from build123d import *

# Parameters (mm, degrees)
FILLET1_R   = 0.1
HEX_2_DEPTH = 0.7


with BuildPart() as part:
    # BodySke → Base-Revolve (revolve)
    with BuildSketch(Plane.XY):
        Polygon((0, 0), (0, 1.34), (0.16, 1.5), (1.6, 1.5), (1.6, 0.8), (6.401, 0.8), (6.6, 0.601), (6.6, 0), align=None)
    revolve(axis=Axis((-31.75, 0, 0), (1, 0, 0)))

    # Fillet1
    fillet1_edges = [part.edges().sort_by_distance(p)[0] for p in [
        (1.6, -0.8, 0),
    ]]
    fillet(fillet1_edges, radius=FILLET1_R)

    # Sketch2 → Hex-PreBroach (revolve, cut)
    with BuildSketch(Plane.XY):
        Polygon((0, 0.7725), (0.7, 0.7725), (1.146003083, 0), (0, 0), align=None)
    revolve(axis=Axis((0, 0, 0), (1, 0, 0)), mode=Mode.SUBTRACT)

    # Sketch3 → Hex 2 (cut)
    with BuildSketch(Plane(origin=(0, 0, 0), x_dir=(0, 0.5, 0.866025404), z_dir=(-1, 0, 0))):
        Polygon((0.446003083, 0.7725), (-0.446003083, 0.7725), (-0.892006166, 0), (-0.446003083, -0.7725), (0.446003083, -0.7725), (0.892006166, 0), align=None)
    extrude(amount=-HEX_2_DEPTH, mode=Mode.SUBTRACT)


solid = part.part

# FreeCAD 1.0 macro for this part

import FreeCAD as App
import Part
import Sketcher
from FreeCAD import Vector
Q = App.Units.Quantity


def edges_at(feature, points):
    """Names of the edges that pass closest to the given points."""
    edges = feature.Shape.Edges
    near = lambda p: min(range(len(edges)), key=lambda i: edges[i].distToShape(Part.Vertex(*p))[0])
    return sorted({f"Edge{near(p) + 1}" for p in points})

doc = App.newDocument("Part")
body = doc.addObject("PartDesign::Body", "Body")

sketch1 = body.newObject("Sketcher::SketchObject", "Sketch")
sketch1.AttachmentSupport = (doc.getObject("XY_Plane"), [""])
sketch1.MapMode = "FlatFace"
sketch1.addGeometry([
    Part.LineSegment(Vector(0, 1.34, 0), Vector(0, 0, 0)),
    Part.LineSegment(Vector(0, 0, 0), Vector(6.6, 0, 0)),
    Part.LineSegment(Vector(6.6, 0, 0), Vector(6.6, 0.6, 0)),
    Part.LineSegment(Vector(6.6, 0.6, 0), Vector(6.4, 0.8, 0)),
    Part.LineSegment(Vector(6.4, 0.8, 0), Vector(1.6, 0.8, 0)),
    Part.LineSegment(Vector(1.6, 0.8, 0), Vector(1.6, 1.5, 0)),
    Part.LineSegment(Vector(1.6, 1.5, 0), Vector(0.16, 1.5, 0)),
    Part.LineSegment(Vector(0.16, 1.5, 0), Vector(0, 1.34, 0)),
], False)
sketch1.addConstraint([
    Sketcher.Constraint("Coincident", 0, 2, 1, 1),
    Sketcher.Constraint("Coincident", 1, 2, 2, 1),
    Sketcher.Constraint("Coincident", 2, 2, 3, 1),
    Sketcher.Constraint("Coincident", 3, 2, 4, 1),
    Sketcher.Constraint("Coincident", 4, 2, 5, 1),
    Sketcher.Constraint("Coincident", 5, 2, 6, 1),
    Sketcher.Constraint("Coincident", 6, 2, 7, 1),
    Sketcher.Constraint("Coincident", 7, 2, 0, 1),
    Sketcher.Constraint("Vertical", 0),
    Sketcher.Constraint("Horizontal", 1),
    Sketcher.Constraint("Vertical", 2),
    Sketcher.Constraint("Horizontal", 4),
    Sketcher.Constraint("Vertical", 5),
    Sketcher.Constraint("Horizontal", 6),
    Sketcher.Constraint("Coincident", 0, 2, -1, 1),
    Sketcher.Constraint("Perpendicular", 3, 7),
    Sketcher.Constraint("Angle", 3, Q("135 deg")),
    Sketcher.Constraint("DistanceX", 1, 1, 1, 2, 6.6),
    Sketcher.Constraint("DistanceY", 5, 1, 5, 2, 0.7),
    Sketcher.Constraint("DistanceX", 4, 2, 2, 2, 5.0),
    Sketcher.Constraint("DistanceX", 6, 2, 6, 1, 1.44),
    Sketcher.Constraint("DistanceY", 0, 2, 0, 1, 1.34),
    Sketcher.Constraint("DistanceX", 4, 2, 4, 1, 4.801),
])
revolution = body.newObject("PartDesign::Revolution", "Revolution")
revolution.Profile = sketch1
revolution.ReferenceAxis = (sketch1, ["H_Axis"])
revolution.Angle = 360
doc.recompute()

fillet = body.newObject("PartDesign::Fillet", "Fillet")
fillet.Base = (revolution, edges_at(revolution, [(1.6, -0.8, 0)]))
fillet.Radius = 0.1

sketch2 = body.newObject("Sketcher::SketchObject", "Sketch001")
sketch2.AttachmentSupport = (doc.getObject("XY_Plane"), [""])
sketch2.MapMode = "FlatFace"
sketch2.addGeometry([
    Part.LineSegment(Vector(0.7, 0.8, 0), Vector(0, 0.8, 0)),
    Part.LineSegment(Vector(0, 0.8, 0), Vector(0, 0, 0)),
    Part.LineSegment(Vector(0, 0, 0), Vector(1.1, 0, 0)),
    Part.LineSegment(Vector(1.1, 0, 0), Vector(0.7, 0.8, 0)),
], False)
sketch2.addConstraint([
    Sketcher.Constraint("Coincident", 0, 2, 1, 1),
    Sketcher.Constraint("Coincident", 1, 2, 2, 1),
    Sketcher.Constraint("Coincident", 2, 2, 3, 1),
    Sketcher.Constraint("Coincident", 3, 2, 0, 1),
    Sketcher.Constraint("Horizontal", 0),
    Sketcher.Constraint("Vertical", 1),
    Sketcher.Constraint("Horizontal", 2),
    Sketcher.Constraint("Coincident", 1, 2, -1, 1),
    Sketcher.Constraint("Angle", 3, Q("120 deg")),
    Sketcher.Constraint("DistanceX", 0, 2, 0, 1, 0.7),
    Sketcher.Constraint("DistanceY", 1, 2, 1, 1, 0.7725),
])
groove = body.newObject("PartDesign::Groove", "Groove")
groove.Profile = sketch2
groove.ReferenceAxis = (sketch2, ["H_Axis"])
groove.Angle = 360

sketch3 = body.newObject("Sketcher::SketchObject", "Sketch002")
sketch3.AttachmentSupport = (doc.getObject("YZ_Plane"), [""])
sketch3.MapMode = "FlatFace"
sketch3.addGeometry([
    Part.LineSegment(Vector(0.9, 0, 0), Vector(0.4, -0.8, 0)),
    Part.LineSegment(Vector(0.4, -0.8, 0), Vector(-0.4, -0.8, 0)),
    Part.LineSegment(Vector(-0.4, -0.8, 0), Vector(-0.9, 0, 0)),
    Part.LineSegment(Vector(-0.9, 0, 0), Vector(-0.4, 0.8, 0)),
    Part.LineSegment(Vector(-0.4, 0.8, 0), Vector(0.4, 0.8, 0)),
    Part.LineSegment(Vector(0.4, 0.8, 0), Vector(0.9, 0, 0)),
], False)
sketch3.addConstraint([
    Sketcher.Constraint("Coincident", 0, 2, 1, 1),
    Sketcher.Constraint("Coincident", 1, 2, 2, 1),
    Sketcher.Constraint("Coincident", 2, 2, 3, 1),
    Sketcher.Constraint("Coincident", 3, 2, 4, 1),
    Sketcher.Constraint("Coincident", 4, 2, 5, 1),
    Sketcher.Constraint("Coincident", 5, 2, 0, 1),
    Sketcher.Constraint("Horizontal", 1),
    Sketcher.Constraint("Horizontal", 4),
    Sketcher.Constraint("Symmetric", 0, 2, 3, 2, -1, 1),
    Sketcher.Constraint("Symmetric", 2, 2, 5, 2, -1, 1),
    Sketcher.Constraint("PointOnObject", 2, 2, -1),
    Sketcher.Constraint("Parallel", 2, 5),
    Sketcher.Constraint("Vertical", 1, 2, 3, 2),
    Sketcher.Constraint("Angle", 0, Q("-120 deg")),
    Sketcher.Constraint("DistanceY", 1, 2, 3, 2, 1.545),
    Sketcher.Constraint("DistanceX", 1, 2, 1, 1, 0.892006),
])
pocket1 = body.newObject("PartDesign::Pocket", "Pocket")
pocket1.Profile = sketch3
pocket1.Length = 0.7
pocket1.Reversed = True

doc.recompute()
